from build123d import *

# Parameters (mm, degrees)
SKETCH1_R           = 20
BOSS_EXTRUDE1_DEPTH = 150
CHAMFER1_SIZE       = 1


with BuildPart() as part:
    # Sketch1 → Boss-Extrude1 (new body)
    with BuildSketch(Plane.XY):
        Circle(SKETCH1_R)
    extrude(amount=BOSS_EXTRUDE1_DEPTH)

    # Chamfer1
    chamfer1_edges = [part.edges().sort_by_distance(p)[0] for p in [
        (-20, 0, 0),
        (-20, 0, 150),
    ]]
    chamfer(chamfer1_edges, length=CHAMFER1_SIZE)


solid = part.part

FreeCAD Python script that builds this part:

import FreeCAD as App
import Part
import Sketcher
from FreeCAD import Vector


def edges_at(feature, points):
    """Names of the edges that pass closest to the given points."""
    edges = feature.Shape.Edges
    near = lambda p: min(range(len(edges)), key=lambda i: edges[i].distToShape(Part.Vertex(*p))[0])
    return sorted({f"Edge{near(p) + 1}" for p in points})

doc = App.newDocument("Part")
body = doc.addObject("PartDesign::Body", "Body")

# Sketch on XY plane
sketch1 = body.newObject("Sketcher::SketchObject", "Sketch")
sketch1.AttachmentSupport = (doc.getObject("XY_Plane"), [""])
sketch1.MapMode = "FlatFace"
sketch1.addGeometry(Part.Circle(Vector(0, 0, 0), Vector(0, 0, 1), 20), False)
sketch1.addConstraint(Sketcher.Constraint("Coincident", 0, 3, -1, 1))
sketch1.addConstraint(Sketcher.Constraint("Diameter", 0, 40.0))
pad1 = body.newObject("PartDesign::Pad", "Pad")
pad1.Profile = sketch1
pad1.Length = 150
doc.recompute()

chamfer = body.newObject("PartDesign::Chamfer", "Chamfer")
chamfer.Base = (pad1, edges_at(pad1, [(-20, 0, 0), (-20, 0, 150)]))
chamfer.Size = 1

doc.recompute()
